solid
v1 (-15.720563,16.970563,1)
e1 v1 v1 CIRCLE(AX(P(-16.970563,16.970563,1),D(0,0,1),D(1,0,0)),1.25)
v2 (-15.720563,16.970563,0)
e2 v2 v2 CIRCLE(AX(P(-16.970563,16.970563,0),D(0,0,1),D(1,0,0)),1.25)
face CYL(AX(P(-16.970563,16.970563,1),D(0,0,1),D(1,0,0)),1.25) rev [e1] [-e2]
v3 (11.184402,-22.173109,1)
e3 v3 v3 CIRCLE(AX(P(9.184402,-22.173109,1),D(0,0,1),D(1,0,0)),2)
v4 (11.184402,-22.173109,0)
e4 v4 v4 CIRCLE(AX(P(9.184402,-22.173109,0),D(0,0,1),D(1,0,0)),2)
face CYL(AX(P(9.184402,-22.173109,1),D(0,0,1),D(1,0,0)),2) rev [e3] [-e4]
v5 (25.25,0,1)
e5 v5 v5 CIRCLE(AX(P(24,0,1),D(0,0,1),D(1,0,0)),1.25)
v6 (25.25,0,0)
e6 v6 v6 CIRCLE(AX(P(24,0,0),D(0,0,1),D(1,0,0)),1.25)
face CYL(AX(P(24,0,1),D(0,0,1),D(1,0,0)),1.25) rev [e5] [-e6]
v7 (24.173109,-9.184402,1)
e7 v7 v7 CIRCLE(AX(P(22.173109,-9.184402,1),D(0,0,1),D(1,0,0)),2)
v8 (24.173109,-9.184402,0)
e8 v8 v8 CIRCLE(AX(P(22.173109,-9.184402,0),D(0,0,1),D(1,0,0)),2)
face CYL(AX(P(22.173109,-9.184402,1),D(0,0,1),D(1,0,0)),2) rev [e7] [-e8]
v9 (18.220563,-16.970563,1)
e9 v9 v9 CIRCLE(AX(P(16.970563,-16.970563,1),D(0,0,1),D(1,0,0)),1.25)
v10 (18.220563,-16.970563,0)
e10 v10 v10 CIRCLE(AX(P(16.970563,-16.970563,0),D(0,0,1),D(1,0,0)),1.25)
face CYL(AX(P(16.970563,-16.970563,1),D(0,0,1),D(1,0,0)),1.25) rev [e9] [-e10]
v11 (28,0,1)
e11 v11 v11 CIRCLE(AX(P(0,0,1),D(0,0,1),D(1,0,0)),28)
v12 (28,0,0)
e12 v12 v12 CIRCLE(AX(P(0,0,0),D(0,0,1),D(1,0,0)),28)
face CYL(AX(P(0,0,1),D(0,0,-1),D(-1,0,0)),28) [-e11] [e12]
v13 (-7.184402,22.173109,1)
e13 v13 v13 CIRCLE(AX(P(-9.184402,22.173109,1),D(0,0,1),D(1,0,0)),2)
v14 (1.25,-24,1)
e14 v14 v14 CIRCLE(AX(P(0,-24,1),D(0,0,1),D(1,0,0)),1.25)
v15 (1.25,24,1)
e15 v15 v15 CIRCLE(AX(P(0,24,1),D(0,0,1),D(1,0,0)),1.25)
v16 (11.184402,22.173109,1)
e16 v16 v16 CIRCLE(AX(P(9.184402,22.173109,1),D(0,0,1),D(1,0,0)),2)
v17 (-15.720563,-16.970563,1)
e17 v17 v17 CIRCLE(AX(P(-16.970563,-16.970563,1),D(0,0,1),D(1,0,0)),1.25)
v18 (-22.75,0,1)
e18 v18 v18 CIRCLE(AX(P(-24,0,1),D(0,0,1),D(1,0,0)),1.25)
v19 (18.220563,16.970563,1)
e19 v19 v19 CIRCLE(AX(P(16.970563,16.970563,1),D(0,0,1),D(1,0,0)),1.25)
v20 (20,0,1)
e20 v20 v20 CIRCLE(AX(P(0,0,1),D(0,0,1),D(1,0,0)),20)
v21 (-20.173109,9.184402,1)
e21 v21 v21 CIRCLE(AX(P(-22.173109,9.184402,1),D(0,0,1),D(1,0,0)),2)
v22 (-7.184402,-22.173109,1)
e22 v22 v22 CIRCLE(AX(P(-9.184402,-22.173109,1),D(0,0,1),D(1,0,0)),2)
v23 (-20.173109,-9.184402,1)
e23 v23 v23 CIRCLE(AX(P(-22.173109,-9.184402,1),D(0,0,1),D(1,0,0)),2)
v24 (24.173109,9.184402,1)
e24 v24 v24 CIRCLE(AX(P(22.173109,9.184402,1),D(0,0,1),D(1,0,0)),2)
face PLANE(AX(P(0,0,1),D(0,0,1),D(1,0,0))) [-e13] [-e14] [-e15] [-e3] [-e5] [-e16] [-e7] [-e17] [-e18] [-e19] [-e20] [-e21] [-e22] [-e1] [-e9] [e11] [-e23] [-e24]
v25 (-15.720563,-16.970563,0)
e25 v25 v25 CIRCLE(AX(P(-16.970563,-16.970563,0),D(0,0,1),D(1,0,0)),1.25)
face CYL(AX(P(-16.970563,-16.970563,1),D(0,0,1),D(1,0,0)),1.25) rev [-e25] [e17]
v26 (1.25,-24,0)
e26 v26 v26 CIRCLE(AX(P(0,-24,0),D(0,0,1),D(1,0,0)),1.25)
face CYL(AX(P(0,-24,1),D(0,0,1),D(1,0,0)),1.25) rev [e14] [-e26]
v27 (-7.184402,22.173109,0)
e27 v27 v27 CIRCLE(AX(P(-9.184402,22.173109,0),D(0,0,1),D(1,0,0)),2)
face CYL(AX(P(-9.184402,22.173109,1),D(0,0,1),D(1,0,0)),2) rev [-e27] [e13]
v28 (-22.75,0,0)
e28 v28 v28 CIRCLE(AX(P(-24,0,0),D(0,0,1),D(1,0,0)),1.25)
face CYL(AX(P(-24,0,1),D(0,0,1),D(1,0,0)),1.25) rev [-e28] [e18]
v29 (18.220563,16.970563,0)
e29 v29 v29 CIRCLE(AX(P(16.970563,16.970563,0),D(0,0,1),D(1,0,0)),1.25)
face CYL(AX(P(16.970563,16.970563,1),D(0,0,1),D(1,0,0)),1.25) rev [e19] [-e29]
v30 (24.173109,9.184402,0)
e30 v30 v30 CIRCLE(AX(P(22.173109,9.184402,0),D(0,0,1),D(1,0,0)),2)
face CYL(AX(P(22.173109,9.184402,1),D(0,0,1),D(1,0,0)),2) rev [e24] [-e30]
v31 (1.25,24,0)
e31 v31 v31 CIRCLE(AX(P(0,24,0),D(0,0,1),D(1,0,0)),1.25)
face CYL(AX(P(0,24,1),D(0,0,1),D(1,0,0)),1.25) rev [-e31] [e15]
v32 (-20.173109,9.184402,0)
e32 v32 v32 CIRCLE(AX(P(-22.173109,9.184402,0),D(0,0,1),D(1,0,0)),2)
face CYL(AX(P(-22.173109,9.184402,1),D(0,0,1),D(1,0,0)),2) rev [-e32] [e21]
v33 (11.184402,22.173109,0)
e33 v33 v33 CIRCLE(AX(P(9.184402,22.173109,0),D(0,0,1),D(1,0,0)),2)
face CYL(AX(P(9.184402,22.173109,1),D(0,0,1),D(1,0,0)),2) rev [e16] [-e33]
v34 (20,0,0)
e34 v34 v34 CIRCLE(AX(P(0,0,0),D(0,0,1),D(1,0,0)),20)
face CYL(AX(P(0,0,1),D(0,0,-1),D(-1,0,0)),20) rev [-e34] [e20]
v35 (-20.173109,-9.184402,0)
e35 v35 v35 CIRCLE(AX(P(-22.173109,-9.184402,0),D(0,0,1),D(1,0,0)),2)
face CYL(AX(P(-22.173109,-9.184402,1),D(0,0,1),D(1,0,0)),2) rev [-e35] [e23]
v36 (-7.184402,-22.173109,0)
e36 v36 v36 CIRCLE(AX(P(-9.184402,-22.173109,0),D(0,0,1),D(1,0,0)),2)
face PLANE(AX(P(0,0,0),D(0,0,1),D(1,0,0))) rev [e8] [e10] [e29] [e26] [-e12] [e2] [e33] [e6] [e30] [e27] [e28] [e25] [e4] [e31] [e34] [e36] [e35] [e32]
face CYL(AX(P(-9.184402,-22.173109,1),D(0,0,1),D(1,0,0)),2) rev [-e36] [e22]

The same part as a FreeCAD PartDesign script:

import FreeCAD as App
import Part
import Sketcher

V = App.Vector
Q = App.Units.Quantity


def add_polygon(sketch, points):
    """Adds a closed chain of lines whose ends are joined by coincident constraints."""
    first, n = sketch.GeometryCount, len(points)
    for a, b in zip(points, points[1:] + points[:1]):
        sketch.addGeometry(Part.LineSegment(App.Vector(*a, 0), App.Vector(*b, 0)), False)
    for i in range(n):
        sketch.addConstraint(Sketcher.Constraint("Coincident", first + i, 2, first + (i + 1) % n, 1))

doc = App.newDocument("Part")
params = doc.addObject("Spreadsheet::Sheet", "Params")
for row, (alias, value) in enumerate([
    ("sketch1_diameter", "56 mm"),
    ("sketch1_diameter2", "40 mm"),
    ("pad1_length", "1 mm"),
    ("sketch2_height", "1.5 mm"),
    ("sketch2_width", "1.25 mm"),
    ("groove_angle", "360 deg"),
    ("sketch3_width", "2 mm"),
    ("sketch3_height", "1.5 mm"),
    ("groove2_angle", "360 deg"),
], start=1):
    params.set(f"A{row}", alias)
    params.set(f"B{row}", "=" + value)
    params.setAlias(f"B{row}", alias)

body = doc.addObject("PartDesign::Body", "Body")

# Sketch on XY plane
sketch1 = doc.addObject("Sketcher::SketchObject", "Sketch")
body.addObject(sketch1)
sketch1.AttachmentSupport = (doc.XY_Plane, [""])
sketch1.MapMode = "FlatFace"
sketch1.addGeometry([
    Part.Circle(V(0, 0, 0), V(0, 0, 1), 28),
    Part.Circle(V(0, 0, 0), V(0, 0, 1), 20),
], False)
sketch1.addConstraint([
    Sketcher.Constraint("Coincident", 0, 3, -1, 1),
    Sketcher.Constraint("Coincident", 1, 3, -1, 1),
    Sketcher.Constraint("Diameter", 0, 56.0),
    Sketcher.Constraint("Diameter", 1, 40.0),
])
sketch1.setExpression("Constraints[2]", "Params.sketch1_diameter")
sketch1.setExpression("Constraints[3]", "Params.sketch1_diameter2")
pad1 = doc.addObject("PartDesign::Pad", "Pad")
body.addObject(pad1)
pad1.Profile = sketch1
pad1.setExpression("Length", "Params.pad1_length")

# Sketch on YZ plane
sketch2 = doc.addObject("Sketcher::SketchObject", "Sketch001")
body.addObject(sketch2)
sketch2.AttachmentSupport = (doc.YZ_Plane, [""])
sketch2.MapMode = "FlatFace"
add_polygon(sketch2, [(24, -1.3), (24, 1), (22.8, 1), (22.8, -0.5)])  # lines 0-3
sketch2.addGeometry(Part.LineSegment(V(24, 1, 0), V(24, -1.3, 0)), True)  # axis
sketch2.addConstraint([
    Sketcher.Constraint("Vertical", 0),
    Sketcher.Constraint("Horizontal", 1),
    Sketcher.Constraint("Vertical", 2),
    Sketcher.Constraint("Vertical", 4),
    Sketcher.Constraint("Coincident", 4, 1, 0, 2),
    Sketcher.Constraint("Equal", 0, 4),
    Sketcher.Constraint("Angle", 3, Q("-31 deg")),
    Sketcher.Constraint("DistanceY", 2, 2, 2, 1, 1.5),
    Sketcher.Constraint("DistanceX", -1, 1, 0, 2, 24.0),
    Sketcher.Constraint("DistanceY", -1, 1, 0, 2, 1.0),
    Sketcher.Constraint("DistanceX", 1, 2, 1, 1, 1.25),
])
sketch2.setExpression("Constraints[11]", "Params.sketch2_height")
sketch2.setExpression("Constraints[14]", "Params.sketch2_width")
groove = doc.addObject("PartDesign::Groove", "Groove")
body.addObject(groove)
groove.Profile = sketch2
groove.ReferenceAxis = (sketch2, ["Axis0"])
groove.setExpression("Angle", "Params.groove_angle")
doc.recompute()

polarpattern = doc.addObject("PartDesign::PolarPattern", "PolarPattern")
body.addObject(polarpattern)
polarpattern.Originals = [groove]
polarpattern.Axis = (doc.Z_Axis, [""])
polarpattern.Angle = 360
polarpattern.Occurrences = 8
body.Tip = polarpattern

# Sketch on YZ plane
sketch3 = doc.addObject("Sketcher::SketchObject", "Sketch002")
body.addObject(sketch3)
sketch3.AttachmentSupport = (doc.YZ_Plane, [""])
sketch3.MapMode = "FlatFace"
sketch3.AttachmentOffset = App.Placement(V(0, 0, 9.184402), App.Rotation())
add_polygon(sketch3, [(22.2, -1.7), (22.2, 1), (20.2, 1), (20.2, -0.5)])  # lines 0-3
sketch3.addGeometry(Part.LineSegment(V(22.2, 1, 0), V(22.2, -1.7, 0)), True)  # axis
sketch3.addConstraint([
    Sketcher.Constraint("Vertical", 0),
    Sketcher.Constraint("Horizontal", 1),
    Sketcher.Constraint("Vertical", 2),
    Sketcher.Constraint("Vertical", 4),
    Sketcher.Constraint("Coincident", 4, 1, 0, 2),
    Sketcher.Constraint("Equal", 0, 4),
    Sketcher.Constraint("DistanceX", 1, 2, 1, 1, 2.0),
    Sketcher.Constraint("Angle", 3, Q("-31 deg")),
    Sketcher.Constraint("DistanceY", 2, 2, 2, 1, 1.5),
    Sketcher.Constraint("DistanceY", -1, 1, 0, 2, 1.0),
    Sketcher.Constraint("DistanceX", -1, 1, 0, 2, 22.173109),
])
sketch3.setExpression("Constraints[10]", "Params.sketch3_width")
sketch3.setExpression("Constraints[12]", "Params.sketch3_height")
groove2 = doc.addObject("PartDesign::Groove", "Groove001")
body.addObject(groove2)
groove2.Profile = sketch3
groove2.ReferenceAxis = (sketch3, ["Axis0"])
groove2.setExpression("Angle", "Params.groove2_angle")
doc.recompute()

polarpattern2 = doc.addObject("PartDesign::PolarPattern", "PolarPattern001")
body.addObject(polarpattern2)
polarpattern2.Originals = [groove2]
polarpattern2.Axis = (doc.Z_Axis, [""])
polarpattern2.Angle = 360
polarpattern2.Occurrences = 8
body.Tip = polarpattern2

doc.recompute()
